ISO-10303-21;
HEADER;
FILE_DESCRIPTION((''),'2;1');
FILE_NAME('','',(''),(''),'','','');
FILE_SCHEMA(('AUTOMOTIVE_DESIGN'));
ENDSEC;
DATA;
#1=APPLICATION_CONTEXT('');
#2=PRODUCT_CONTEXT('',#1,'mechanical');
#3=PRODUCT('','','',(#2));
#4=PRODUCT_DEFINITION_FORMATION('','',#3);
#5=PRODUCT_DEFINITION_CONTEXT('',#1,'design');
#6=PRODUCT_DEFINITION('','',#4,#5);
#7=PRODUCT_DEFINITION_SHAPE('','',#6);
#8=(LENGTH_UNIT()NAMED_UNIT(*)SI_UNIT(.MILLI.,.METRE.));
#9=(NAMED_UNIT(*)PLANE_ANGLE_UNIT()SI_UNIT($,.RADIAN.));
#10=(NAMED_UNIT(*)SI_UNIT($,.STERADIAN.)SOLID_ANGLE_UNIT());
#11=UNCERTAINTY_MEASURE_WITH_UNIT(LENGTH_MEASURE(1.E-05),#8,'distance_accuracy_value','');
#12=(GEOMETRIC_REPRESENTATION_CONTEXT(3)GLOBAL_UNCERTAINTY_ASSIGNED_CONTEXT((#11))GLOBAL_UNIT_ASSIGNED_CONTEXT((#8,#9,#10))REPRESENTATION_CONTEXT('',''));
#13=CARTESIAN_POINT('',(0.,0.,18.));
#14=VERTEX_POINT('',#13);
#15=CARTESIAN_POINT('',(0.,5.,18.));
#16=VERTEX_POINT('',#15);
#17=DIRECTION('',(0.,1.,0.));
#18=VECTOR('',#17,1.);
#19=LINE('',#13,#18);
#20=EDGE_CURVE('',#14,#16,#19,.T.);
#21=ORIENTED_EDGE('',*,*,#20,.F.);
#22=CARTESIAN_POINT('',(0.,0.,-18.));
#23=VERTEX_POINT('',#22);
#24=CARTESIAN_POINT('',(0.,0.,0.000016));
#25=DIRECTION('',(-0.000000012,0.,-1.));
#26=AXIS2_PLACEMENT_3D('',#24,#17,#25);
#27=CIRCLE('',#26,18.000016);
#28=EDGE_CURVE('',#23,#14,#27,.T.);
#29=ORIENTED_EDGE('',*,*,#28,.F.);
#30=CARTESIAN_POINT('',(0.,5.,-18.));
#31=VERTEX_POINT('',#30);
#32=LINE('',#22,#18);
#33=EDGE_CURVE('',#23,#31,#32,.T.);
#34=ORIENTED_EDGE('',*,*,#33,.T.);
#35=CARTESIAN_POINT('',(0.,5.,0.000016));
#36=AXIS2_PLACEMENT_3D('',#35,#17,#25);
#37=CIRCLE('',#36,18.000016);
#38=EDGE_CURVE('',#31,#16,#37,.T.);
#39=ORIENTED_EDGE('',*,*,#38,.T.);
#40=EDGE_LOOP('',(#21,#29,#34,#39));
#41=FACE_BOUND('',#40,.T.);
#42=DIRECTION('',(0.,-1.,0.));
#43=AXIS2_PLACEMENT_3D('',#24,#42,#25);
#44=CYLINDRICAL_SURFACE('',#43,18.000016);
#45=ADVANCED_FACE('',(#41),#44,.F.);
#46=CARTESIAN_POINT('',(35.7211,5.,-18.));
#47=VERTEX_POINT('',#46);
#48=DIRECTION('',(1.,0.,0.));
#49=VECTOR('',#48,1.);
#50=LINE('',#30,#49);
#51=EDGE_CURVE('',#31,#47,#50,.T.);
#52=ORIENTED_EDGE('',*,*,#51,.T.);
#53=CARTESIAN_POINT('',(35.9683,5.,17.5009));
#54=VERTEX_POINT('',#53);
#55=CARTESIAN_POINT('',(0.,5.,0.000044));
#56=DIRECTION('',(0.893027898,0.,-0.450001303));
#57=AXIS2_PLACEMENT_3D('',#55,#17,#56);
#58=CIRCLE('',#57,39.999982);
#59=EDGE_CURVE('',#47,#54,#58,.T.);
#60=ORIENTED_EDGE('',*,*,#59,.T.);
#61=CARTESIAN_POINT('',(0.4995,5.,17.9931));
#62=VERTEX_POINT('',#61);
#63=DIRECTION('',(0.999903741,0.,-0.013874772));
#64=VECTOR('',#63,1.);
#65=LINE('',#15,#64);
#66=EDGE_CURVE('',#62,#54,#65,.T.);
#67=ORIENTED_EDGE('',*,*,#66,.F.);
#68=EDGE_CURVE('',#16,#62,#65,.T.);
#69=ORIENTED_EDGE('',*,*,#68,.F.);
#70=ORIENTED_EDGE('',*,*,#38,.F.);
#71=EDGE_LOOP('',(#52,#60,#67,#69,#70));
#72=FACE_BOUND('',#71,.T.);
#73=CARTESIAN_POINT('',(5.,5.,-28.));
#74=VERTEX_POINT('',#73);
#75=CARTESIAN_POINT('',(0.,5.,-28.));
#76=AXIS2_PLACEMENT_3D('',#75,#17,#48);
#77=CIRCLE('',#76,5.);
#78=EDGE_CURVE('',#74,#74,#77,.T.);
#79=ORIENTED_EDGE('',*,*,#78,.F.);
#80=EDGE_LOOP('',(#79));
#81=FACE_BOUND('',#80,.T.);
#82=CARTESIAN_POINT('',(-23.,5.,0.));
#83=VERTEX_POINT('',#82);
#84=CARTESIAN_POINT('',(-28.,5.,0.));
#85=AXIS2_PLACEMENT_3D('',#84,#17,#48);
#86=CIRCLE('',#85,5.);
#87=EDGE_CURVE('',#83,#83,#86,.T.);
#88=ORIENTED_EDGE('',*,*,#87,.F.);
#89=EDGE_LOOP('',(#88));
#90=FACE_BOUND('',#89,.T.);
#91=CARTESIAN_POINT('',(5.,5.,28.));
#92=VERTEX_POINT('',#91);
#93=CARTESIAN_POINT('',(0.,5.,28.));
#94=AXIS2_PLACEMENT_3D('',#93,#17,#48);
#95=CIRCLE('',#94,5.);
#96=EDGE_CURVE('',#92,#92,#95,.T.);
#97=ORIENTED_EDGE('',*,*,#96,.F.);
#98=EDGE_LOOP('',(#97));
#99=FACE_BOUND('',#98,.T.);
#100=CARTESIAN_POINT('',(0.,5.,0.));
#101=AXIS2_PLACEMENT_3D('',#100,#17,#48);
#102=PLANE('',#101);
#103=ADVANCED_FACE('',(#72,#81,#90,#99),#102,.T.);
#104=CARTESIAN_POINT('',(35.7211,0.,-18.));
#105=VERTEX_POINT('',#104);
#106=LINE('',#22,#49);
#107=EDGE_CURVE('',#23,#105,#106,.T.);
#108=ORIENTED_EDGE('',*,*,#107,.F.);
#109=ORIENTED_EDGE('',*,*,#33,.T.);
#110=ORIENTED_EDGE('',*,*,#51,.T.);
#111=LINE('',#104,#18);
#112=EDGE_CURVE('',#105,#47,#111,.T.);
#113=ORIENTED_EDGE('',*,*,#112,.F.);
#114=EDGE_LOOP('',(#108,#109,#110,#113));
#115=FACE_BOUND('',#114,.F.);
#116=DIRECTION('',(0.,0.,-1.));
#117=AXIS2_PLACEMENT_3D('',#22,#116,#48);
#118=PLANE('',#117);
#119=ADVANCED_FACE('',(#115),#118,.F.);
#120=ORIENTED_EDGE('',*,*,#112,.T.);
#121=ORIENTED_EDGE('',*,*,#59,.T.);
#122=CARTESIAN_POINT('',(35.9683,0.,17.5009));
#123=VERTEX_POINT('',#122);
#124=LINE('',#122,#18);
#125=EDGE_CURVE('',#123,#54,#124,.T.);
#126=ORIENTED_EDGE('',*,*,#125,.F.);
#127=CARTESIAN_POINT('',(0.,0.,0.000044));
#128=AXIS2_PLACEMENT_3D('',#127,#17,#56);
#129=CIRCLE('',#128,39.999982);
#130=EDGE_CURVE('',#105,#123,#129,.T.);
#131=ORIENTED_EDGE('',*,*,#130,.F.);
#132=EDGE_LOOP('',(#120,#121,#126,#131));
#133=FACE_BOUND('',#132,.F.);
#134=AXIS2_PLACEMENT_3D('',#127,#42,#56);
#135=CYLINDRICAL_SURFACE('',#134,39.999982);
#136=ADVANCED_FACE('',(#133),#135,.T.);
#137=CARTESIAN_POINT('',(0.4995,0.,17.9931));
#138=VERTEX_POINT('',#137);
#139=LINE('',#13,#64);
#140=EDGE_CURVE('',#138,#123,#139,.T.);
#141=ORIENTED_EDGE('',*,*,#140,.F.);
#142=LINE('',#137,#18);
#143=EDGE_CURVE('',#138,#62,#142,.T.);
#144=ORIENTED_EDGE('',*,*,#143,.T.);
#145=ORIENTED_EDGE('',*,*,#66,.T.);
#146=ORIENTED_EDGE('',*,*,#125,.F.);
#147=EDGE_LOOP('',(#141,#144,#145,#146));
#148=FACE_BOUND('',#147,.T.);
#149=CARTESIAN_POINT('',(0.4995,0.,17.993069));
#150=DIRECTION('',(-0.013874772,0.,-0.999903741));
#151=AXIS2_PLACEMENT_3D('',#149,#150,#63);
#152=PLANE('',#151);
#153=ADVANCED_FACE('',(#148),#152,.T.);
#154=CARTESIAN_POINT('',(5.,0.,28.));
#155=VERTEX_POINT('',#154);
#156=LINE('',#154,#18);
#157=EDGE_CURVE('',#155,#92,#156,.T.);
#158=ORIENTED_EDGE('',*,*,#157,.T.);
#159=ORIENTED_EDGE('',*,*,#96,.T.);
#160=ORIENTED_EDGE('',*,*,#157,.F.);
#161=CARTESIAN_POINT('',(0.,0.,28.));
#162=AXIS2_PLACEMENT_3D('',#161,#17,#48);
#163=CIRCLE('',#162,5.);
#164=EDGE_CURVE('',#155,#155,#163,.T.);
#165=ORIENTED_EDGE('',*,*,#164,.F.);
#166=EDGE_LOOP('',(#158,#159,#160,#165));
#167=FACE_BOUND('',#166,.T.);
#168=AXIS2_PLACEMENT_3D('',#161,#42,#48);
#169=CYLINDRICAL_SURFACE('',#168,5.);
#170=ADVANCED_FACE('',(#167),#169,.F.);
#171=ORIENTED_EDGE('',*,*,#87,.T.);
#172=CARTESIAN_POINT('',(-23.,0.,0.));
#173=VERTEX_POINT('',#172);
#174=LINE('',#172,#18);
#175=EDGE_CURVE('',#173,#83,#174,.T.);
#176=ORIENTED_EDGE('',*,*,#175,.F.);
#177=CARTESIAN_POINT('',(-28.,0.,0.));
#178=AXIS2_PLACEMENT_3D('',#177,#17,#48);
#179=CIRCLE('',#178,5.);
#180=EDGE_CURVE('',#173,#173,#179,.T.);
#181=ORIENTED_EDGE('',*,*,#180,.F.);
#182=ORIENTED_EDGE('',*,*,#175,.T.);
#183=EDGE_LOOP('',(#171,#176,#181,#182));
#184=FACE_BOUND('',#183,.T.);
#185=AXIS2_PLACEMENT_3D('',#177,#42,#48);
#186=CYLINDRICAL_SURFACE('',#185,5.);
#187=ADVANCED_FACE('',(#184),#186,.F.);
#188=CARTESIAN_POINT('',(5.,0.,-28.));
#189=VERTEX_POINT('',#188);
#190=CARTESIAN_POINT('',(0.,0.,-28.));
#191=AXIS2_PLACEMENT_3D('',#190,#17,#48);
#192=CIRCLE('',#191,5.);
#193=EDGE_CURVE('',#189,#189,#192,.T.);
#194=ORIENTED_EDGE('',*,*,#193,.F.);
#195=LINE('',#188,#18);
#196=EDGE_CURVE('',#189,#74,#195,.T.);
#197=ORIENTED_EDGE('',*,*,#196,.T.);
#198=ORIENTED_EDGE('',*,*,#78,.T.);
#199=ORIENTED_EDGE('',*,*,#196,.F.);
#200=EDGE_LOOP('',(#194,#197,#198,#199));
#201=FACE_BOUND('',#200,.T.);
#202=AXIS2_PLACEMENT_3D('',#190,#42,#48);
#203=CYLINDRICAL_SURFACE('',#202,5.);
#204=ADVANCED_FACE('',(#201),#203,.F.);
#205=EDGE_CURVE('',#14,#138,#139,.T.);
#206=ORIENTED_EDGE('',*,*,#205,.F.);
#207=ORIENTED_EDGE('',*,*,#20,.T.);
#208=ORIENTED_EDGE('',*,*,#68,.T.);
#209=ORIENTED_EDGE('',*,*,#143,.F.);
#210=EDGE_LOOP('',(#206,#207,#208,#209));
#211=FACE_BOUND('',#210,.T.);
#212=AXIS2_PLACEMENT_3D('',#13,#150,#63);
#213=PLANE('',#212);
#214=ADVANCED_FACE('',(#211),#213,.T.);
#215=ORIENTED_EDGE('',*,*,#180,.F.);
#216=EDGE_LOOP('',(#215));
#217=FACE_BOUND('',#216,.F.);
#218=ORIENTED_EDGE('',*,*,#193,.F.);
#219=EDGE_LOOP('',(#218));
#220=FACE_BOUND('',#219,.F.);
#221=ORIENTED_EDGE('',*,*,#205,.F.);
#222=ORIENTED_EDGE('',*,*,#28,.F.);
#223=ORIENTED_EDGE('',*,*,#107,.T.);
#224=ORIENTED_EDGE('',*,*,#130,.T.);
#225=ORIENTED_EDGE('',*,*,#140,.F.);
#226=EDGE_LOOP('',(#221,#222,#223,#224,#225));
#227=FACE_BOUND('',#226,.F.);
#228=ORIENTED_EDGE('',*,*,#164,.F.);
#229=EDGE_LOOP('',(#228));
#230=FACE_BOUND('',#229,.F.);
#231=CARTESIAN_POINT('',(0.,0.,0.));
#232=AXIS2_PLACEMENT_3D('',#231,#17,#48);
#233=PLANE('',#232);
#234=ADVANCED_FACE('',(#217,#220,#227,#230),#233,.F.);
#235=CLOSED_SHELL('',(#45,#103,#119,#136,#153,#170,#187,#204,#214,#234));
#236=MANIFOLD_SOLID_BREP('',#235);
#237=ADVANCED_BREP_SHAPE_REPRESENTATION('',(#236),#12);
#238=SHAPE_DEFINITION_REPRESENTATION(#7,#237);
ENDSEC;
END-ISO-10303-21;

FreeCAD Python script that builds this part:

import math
import FreeCAD as App
import Part
import Sketcher

V = App.Vector
Q = App.Units.Quantity

doc = App.newDocument("Part")
body = doc.addObject("PartDesign::Body", "Body")

sketch1 = doc.addObject("Sketcher::SketchObject", "Sketch")
body.addObject(sketch1)
sketch1.AttachmentSupport = (doc.XZ_Plane, [""])
sketch1.MapMode = "FlatFace"
sketch1.addGeometry(Part.ArcOfCircle(Part.Circle(V(0, 0, 0), V(0, 0, 1), 18), math.radians(90), math.radians(270)), False)
sketch1.addGeometry(Part.LineSegment(V(0, -18, 0), V(36, -18, 0)), False)
sketch1.addGeometry(Part.ArcOfCircle(Part.Circle(V(0, 0, 0), V(0, 0, 1), 40), math.radians(26), math.radians(333)), False)
sketch1.addGeometry(Part.LineSegment(V(36, 18, 0), V(0, 18, 0)), False)
sketch1.addGeometry(Part.Circle(V(0, 28, 0), V(0, 0, 1), 5), False)
sketch1.addGeometry(Part.Circle(V(-28, 0, 0), V(0, 0, 1), 5), False)
sketch1.addGeometry(Part.Circle(V(0, -28, 0), V(0, 0, 1), 5), False)
sketch1.addConstraint(Sketcher.Constraint("Tangent", 0, 2, 1, 1))
sketch1.addConstraint(Sketcher.Constraint("Coincident", 1, 2, 2, 2))
sketch1.addConstraint(Sketcher.Constraint("Coincident", 2, 1, 3, 1))
sketch1.addConstraint(Sketcher.Constraint("Coincident", 3, 2, 0, 1))
sketch1.addConstraint(Sketcher.Constraint("Horizontal", 1))
sketch1.addConstraint(Sketcher.Constraint("Coincident", 0, 3, -1, 1))
sketch1.addConstraint(Sketcher.Constraint("Coincident", 2, 3, -1, 1))
sketch1.addConstraint(Sketcher.Constraint("Equal", 4, 5))
sketch1.addConstraint(Sketcher.Constraint("Equal", 5, 6))
sketch1.addConstraint(Sketcher.Constraint("Symmetric", 4, 3, 6, 3, -1, 1))
sketch1.addConstraint(Sketcher.Constraint("PointOnObject", 4, 3, -2))
sketch1.addConstraint(Sketcher.Constraint("PointOnObject", 5, 3, -1))
sketch1.addConstraint(Sketcher.Constraint("PointOnObject", 3, 2, -2))
sketch1.addConstraint(Sketcher.Constraint("Diameter", 4, Q("10 mm")))
sketch1.addConstraint(Sketcher.Constraint("Radius", 0, Q("18 mm")))
sketch1.addConstraint(Sketcher.Constraint("Radius", 2, Q("40 mm")))
sketch1.addConstraint(Sketcher.Constraint("DistanceY", -1, 1, 4, 3, Q("28 mm")))
sketch1.addConstraint(Sketcher.Constraint("DistanceX", 5, 3, -1, 1, Q("28 mm")))
sketch1.addConstraint(Sketcher.Constraint("DistanceY", -1, 1, 2, 1, Q("17.501 mm")))
pad1 = doc.addObject("PartDesign::Pad", "Pad")
body.addObject(pad1)
pad1.Profile = sketch1
pad1.Length = 5
pad1.Reversed = True

doc.recompute()
